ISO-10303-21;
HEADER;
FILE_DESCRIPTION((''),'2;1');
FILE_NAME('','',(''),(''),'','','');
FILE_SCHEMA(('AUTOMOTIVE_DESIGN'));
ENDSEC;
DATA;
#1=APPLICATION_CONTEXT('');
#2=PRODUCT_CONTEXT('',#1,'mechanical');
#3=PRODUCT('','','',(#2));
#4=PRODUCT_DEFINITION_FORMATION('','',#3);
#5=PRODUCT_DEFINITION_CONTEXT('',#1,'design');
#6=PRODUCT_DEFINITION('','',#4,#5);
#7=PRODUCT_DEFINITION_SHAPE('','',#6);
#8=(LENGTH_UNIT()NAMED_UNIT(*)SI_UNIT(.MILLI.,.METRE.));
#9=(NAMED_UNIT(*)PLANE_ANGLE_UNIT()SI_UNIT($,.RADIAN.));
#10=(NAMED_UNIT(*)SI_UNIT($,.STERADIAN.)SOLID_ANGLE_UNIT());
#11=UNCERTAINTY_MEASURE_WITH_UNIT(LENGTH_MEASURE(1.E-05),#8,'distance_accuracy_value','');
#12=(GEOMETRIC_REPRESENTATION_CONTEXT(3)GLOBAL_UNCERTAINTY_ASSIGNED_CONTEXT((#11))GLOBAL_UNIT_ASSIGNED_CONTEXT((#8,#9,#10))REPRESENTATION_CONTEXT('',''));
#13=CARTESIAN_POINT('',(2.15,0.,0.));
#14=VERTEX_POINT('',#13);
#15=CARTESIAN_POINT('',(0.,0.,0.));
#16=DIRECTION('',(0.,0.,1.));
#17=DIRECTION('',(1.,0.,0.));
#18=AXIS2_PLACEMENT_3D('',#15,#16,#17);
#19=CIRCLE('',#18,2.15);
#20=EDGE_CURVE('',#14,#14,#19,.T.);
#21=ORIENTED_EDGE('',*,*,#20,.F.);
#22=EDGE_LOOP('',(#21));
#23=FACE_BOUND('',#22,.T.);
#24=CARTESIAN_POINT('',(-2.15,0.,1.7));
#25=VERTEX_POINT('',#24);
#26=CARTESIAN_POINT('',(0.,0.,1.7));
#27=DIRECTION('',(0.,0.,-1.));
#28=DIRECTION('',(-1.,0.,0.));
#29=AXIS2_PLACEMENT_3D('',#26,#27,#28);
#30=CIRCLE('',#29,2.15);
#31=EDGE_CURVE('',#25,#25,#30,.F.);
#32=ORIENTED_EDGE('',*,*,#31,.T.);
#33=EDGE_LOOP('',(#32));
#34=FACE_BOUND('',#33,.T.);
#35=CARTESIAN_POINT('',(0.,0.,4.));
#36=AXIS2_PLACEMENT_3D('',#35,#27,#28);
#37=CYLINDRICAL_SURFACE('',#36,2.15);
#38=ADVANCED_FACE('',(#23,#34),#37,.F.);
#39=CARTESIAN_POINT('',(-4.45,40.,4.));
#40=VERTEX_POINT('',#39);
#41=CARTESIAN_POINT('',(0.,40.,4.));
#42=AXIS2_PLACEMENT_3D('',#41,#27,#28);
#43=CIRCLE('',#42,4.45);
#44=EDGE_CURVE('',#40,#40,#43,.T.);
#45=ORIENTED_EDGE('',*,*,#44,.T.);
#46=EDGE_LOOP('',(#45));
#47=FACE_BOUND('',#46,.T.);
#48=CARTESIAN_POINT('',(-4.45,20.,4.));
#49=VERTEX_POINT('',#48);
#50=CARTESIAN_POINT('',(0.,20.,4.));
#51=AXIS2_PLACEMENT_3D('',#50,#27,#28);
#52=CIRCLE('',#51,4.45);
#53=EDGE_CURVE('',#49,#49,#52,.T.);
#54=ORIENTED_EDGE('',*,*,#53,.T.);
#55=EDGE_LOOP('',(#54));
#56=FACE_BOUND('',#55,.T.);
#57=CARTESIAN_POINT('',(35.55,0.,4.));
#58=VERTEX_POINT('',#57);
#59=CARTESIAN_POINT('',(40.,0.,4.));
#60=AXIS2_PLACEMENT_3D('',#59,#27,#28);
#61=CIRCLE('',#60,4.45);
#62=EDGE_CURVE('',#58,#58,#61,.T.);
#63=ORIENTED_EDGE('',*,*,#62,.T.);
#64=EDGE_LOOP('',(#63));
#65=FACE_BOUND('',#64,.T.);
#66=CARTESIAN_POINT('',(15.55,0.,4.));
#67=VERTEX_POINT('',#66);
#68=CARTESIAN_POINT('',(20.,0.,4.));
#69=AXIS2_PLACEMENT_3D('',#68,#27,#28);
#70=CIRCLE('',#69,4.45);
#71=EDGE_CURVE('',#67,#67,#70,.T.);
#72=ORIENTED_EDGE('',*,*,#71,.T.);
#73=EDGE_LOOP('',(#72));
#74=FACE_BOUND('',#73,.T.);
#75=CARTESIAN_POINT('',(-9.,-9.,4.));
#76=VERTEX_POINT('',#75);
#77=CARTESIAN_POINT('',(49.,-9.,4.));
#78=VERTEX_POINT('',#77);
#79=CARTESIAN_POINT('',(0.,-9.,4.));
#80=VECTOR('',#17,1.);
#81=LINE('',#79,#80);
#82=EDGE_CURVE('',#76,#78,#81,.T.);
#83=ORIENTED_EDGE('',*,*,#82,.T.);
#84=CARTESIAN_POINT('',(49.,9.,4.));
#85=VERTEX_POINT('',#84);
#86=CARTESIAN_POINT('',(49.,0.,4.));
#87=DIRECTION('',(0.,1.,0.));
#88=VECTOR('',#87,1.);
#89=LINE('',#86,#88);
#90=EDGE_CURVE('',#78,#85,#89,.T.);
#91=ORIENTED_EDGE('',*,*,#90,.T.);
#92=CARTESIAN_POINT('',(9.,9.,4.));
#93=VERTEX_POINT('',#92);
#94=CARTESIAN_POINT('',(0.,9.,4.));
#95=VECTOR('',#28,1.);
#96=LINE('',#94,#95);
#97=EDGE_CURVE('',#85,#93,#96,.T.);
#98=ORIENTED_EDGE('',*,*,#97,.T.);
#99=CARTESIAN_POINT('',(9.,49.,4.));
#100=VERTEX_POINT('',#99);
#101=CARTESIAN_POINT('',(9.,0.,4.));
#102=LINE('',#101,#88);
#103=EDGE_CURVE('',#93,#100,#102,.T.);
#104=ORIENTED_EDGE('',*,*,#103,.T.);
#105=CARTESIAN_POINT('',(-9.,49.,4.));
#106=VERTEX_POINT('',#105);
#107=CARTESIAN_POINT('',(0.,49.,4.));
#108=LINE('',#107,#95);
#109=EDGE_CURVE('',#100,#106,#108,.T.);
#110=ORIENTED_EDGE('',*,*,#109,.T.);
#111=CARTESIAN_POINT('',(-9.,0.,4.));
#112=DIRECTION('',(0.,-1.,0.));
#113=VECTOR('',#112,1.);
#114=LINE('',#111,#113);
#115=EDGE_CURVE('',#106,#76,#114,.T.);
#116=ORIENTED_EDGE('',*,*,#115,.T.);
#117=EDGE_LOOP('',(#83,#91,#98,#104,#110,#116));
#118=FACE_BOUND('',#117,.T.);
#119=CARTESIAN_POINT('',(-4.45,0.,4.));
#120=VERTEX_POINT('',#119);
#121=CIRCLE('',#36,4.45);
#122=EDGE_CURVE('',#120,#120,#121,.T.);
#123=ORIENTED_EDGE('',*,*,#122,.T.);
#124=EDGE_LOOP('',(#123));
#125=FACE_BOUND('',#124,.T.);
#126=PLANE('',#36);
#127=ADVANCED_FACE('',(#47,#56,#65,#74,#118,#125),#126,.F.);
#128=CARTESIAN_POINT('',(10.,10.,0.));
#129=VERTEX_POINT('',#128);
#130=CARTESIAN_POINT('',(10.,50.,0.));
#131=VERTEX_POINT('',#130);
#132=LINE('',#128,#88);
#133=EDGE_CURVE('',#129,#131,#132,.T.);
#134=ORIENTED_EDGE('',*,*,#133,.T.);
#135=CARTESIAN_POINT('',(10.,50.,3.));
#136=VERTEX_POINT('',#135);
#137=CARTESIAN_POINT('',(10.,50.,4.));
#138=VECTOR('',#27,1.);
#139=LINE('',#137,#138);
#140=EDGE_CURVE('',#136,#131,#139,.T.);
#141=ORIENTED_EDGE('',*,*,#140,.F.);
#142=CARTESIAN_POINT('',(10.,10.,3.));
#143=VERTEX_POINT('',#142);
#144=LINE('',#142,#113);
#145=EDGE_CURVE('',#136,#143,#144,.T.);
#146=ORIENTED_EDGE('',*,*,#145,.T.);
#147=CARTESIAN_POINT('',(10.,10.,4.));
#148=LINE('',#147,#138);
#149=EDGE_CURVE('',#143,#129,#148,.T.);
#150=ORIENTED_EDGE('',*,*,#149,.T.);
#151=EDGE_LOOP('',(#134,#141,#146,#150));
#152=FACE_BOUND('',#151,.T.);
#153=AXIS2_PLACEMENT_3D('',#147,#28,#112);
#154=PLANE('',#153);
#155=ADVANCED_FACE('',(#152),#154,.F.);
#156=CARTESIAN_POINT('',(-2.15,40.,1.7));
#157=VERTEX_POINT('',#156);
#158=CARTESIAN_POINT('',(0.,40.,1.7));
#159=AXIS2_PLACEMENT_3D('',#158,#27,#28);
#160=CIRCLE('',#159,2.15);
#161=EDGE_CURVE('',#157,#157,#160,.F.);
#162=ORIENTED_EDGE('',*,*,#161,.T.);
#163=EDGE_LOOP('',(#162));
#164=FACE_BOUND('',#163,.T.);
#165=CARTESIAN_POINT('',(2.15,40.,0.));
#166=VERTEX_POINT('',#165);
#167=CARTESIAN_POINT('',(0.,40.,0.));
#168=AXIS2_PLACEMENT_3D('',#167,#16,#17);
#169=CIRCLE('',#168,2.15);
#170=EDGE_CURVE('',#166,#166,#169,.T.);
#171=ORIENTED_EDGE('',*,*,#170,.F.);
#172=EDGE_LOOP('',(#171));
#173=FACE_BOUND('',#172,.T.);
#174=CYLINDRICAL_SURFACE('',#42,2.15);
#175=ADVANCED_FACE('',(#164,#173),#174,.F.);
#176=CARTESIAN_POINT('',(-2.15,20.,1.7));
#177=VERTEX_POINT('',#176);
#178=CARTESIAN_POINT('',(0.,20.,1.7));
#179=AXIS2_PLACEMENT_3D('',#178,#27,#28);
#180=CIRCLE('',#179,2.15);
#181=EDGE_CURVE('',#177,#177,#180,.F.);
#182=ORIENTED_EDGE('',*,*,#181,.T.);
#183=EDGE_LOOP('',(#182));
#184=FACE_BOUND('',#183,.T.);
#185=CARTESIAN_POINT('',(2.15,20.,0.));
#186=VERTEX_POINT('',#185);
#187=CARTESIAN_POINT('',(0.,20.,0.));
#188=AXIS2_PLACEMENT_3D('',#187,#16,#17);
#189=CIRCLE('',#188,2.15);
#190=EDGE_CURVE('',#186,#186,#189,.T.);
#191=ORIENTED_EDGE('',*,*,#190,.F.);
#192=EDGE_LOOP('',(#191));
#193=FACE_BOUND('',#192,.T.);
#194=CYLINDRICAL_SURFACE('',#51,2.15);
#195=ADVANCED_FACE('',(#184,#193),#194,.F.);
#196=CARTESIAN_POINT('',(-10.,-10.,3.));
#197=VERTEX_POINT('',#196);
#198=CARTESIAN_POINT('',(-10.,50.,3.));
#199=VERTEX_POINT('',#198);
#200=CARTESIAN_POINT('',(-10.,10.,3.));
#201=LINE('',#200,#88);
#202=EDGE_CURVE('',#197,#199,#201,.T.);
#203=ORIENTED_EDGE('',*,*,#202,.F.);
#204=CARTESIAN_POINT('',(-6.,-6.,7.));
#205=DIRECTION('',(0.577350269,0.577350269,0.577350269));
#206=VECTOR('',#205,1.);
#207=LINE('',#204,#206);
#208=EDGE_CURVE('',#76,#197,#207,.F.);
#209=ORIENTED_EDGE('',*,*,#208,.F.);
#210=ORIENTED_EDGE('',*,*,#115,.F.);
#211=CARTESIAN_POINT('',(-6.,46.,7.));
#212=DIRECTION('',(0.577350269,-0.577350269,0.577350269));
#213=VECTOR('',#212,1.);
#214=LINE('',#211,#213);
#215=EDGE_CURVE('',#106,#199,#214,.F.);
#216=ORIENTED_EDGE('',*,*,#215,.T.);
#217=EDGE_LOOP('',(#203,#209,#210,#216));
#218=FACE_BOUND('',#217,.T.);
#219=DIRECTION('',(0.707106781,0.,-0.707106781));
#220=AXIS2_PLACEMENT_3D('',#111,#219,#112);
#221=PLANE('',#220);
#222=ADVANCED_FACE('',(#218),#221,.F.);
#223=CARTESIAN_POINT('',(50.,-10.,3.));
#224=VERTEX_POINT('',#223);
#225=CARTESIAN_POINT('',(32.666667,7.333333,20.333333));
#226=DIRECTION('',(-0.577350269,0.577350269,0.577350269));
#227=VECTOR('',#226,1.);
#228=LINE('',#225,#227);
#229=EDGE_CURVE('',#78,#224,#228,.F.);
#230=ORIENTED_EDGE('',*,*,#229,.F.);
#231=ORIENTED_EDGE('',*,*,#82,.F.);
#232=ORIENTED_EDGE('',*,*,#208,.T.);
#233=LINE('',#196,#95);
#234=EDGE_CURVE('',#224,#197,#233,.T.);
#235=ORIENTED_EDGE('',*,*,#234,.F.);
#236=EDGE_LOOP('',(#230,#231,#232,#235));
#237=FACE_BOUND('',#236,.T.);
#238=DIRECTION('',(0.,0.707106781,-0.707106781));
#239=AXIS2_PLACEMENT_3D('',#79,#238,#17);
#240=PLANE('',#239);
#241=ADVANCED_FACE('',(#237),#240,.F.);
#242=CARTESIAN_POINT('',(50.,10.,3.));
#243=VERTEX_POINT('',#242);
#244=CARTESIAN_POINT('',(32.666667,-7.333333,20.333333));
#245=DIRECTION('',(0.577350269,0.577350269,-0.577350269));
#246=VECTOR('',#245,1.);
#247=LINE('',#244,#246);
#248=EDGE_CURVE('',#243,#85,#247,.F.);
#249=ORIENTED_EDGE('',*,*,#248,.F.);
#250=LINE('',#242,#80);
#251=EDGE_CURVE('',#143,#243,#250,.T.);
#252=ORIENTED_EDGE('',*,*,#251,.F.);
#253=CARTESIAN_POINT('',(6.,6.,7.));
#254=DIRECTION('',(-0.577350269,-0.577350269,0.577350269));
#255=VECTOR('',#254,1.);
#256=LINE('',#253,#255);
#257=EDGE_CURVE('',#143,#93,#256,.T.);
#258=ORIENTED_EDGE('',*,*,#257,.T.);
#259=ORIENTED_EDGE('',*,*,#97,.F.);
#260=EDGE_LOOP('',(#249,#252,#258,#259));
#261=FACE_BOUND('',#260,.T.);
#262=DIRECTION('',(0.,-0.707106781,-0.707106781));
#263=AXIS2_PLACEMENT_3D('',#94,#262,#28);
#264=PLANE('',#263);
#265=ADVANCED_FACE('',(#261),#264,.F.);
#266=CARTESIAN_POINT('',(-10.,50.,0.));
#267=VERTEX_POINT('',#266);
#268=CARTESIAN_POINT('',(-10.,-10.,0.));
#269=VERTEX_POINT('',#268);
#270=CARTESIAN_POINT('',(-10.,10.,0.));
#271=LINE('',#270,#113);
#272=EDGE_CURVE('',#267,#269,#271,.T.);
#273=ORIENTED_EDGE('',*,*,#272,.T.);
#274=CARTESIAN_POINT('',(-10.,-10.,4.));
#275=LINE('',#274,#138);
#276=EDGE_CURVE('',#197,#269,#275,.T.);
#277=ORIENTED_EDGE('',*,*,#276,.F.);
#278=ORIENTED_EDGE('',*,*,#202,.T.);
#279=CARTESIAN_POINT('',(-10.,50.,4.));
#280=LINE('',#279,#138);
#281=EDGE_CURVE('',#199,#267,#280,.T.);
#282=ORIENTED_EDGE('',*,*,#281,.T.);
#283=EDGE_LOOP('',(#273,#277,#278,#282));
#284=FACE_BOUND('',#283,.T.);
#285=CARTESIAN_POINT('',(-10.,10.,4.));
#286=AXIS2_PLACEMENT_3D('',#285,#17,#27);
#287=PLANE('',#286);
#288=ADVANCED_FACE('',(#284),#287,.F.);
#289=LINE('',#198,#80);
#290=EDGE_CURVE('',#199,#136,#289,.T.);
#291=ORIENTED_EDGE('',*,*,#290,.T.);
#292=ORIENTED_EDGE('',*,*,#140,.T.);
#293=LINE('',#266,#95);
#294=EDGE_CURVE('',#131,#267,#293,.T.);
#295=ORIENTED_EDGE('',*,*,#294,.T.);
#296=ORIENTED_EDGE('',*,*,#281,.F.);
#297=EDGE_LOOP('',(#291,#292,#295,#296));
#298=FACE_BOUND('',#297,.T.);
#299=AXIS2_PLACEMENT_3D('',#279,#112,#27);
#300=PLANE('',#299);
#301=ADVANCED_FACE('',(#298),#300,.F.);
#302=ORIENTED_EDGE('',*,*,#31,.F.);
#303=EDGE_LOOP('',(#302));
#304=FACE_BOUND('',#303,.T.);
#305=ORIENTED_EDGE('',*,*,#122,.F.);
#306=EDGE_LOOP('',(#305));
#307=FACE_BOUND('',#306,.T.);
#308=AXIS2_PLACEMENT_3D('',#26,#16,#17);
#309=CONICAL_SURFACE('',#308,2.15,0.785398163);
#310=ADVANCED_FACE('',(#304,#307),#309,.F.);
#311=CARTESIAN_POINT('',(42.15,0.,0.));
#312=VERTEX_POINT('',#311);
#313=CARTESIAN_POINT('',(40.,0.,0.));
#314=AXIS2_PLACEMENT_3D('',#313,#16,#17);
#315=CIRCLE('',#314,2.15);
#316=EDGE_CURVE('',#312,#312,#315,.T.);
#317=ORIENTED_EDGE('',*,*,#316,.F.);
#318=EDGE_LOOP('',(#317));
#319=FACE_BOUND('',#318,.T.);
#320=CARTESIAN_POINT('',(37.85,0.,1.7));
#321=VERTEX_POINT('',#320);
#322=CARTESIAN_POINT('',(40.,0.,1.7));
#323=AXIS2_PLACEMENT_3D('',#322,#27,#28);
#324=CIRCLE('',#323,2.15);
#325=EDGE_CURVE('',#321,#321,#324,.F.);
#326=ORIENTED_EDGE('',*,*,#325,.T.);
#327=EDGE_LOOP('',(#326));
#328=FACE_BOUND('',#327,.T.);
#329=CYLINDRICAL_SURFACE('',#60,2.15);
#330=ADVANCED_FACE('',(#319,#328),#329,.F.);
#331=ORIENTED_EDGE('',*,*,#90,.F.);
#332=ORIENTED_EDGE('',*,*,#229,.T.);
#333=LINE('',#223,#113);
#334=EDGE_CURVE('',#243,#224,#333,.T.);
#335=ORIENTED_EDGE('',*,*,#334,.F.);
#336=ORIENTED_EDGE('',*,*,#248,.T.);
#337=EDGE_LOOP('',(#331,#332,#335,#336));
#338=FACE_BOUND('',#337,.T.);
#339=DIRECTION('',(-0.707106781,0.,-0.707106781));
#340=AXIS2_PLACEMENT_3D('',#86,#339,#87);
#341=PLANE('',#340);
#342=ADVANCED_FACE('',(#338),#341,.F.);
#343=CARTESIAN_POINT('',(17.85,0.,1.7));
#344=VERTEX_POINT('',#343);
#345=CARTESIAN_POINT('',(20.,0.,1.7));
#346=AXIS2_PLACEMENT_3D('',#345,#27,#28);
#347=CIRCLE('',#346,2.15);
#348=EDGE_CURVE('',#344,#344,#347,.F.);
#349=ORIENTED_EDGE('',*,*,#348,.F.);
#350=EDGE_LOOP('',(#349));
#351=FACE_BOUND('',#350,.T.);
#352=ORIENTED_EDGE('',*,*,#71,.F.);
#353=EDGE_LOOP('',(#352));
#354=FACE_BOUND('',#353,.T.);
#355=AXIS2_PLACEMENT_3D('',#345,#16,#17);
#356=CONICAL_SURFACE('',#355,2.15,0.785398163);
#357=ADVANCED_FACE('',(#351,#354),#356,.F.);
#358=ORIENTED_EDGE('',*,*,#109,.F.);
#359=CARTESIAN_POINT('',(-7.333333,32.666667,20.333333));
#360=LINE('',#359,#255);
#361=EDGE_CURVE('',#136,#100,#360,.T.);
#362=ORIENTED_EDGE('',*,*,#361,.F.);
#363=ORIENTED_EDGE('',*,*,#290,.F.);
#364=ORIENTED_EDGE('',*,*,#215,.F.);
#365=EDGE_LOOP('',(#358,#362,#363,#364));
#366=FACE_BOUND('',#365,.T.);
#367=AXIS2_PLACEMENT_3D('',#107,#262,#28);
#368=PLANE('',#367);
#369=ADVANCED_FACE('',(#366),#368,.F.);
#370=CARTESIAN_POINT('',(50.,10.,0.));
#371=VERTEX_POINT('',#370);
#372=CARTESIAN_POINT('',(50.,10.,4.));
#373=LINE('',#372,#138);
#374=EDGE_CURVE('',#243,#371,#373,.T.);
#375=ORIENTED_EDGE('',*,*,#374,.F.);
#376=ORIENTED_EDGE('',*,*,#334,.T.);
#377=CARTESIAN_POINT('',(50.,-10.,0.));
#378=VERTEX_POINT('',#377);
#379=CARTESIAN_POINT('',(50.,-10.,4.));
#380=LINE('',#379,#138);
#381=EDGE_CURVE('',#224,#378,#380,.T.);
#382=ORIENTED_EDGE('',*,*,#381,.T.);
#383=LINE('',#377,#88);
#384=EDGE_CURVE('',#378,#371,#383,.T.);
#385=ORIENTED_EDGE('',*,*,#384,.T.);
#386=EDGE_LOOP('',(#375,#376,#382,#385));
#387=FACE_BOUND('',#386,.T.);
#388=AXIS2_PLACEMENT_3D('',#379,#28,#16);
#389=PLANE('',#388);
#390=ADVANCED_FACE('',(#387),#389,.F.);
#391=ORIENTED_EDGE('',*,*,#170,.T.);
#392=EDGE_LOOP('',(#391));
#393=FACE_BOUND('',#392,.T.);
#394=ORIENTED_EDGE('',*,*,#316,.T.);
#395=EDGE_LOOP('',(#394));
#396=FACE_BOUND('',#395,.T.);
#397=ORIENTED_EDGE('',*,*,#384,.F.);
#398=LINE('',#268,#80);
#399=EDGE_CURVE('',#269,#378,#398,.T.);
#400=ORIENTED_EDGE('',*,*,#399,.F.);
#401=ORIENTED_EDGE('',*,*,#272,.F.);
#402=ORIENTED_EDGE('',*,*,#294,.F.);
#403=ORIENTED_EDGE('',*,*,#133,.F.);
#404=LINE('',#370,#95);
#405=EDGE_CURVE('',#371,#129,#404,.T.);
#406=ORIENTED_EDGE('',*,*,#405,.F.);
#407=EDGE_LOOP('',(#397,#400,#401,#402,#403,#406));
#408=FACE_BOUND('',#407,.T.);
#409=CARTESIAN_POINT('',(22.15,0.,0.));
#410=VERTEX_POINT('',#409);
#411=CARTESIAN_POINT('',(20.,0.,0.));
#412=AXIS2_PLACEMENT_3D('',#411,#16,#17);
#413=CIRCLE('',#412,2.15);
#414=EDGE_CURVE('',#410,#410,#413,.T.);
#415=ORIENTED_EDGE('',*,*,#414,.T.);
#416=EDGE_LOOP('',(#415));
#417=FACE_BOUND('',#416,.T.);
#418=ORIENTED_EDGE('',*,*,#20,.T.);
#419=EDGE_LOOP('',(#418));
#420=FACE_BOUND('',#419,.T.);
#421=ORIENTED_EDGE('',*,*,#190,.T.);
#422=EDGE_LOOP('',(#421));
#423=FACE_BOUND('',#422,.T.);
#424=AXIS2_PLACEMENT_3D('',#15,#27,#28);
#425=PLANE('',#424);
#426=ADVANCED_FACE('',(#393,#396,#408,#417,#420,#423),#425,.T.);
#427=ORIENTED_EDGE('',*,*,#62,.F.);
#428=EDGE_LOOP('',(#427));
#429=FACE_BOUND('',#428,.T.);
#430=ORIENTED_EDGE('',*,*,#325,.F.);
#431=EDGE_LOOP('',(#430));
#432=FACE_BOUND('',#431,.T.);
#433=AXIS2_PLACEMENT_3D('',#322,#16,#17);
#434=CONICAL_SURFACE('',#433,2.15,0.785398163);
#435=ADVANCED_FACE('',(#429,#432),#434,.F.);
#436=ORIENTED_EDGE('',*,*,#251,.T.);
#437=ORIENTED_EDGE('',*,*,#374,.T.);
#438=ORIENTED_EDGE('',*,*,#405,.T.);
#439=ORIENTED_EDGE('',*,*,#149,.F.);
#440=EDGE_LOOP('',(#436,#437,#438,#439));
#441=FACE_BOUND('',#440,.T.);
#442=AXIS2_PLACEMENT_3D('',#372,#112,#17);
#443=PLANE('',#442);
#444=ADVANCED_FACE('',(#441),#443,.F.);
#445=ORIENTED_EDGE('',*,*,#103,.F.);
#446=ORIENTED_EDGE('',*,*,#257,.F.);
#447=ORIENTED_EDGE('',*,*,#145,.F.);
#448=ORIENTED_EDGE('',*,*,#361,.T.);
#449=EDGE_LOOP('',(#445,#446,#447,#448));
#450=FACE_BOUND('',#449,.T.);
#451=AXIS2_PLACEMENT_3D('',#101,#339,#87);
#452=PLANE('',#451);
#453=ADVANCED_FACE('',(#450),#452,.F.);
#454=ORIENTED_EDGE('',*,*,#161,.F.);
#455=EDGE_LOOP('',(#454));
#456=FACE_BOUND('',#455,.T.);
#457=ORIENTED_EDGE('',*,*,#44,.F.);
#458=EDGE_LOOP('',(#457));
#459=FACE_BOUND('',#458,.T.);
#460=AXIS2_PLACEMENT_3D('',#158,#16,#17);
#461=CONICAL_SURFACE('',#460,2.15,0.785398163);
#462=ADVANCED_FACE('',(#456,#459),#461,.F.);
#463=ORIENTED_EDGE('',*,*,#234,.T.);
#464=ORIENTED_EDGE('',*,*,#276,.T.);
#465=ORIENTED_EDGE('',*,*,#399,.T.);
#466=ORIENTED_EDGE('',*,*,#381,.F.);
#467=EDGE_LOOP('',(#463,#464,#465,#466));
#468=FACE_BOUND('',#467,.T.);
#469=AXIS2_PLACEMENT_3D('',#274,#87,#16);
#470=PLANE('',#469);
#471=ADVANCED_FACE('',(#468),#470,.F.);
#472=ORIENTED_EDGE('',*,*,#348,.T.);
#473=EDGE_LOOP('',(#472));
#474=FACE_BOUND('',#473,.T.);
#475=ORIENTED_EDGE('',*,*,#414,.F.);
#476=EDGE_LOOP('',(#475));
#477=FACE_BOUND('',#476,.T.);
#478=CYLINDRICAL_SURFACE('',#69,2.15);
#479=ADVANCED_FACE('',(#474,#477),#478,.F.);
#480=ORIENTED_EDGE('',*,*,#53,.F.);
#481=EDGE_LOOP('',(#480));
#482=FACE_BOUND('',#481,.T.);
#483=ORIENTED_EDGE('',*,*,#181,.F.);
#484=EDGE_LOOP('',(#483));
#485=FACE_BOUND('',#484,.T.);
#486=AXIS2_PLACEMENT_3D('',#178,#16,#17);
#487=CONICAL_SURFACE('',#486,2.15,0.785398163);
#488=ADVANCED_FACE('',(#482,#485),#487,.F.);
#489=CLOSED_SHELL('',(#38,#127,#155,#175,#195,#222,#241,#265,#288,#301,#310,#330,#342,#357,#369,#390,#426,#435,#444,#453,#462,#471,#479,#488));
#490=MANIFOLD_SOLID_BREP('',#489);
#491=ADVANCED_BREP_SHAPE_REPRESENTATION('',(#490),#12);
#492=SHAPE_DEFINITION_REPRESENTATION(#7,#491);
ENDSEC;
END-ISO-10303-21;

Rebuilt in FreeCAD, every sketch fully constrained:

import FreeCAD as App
import Part
import Sketcher
from FreeCAD import Vector
Q = App.Units.Quantity


def edges_at(feature, points):
    """Names of the edges that pass closest to the given points."""
    edges = feature.Shape.Edges
    near = lambda p: min(range(len(edges)), key=lambda i: edges[i].distToShape(Part.Vertex(*p))[0])
    return sorted({f"Edge{near(p) + 1}" for p in points})


def add_polygon(sketch, points):
    """Adds a closed chain of lines whose ends are joined by coincident constraints."""
    first, n = sketch.GeometryCount, len(points)
    for a, b in zip(points, points[1:] + points[:1]):
        sketch.addGeometry(Part.LineSegment(App.Vector(*a, 0), App.Vector(*b, 0)), False)
    for i in range(n):
        sketch.addConstraint(Sketcher.Constraint("Coincident", first + i, 2, first + (i + 1) % n, 1))

doc = App.newDocument("Part")
body = doc.addObject("PartDesign::Body", "Body")

# Sketch on XY plane
sketch1 = body.newObject("Sketcher::SketchObject", "Sketch")
sketch1.AttachmentSupport = (doc.getObject("XY_Plane"), [""])
sketch1.MapMode = "FlatFace"
add_polygon(sketch1, [(50, -10), (50, 10), (10, 10), (10, 50), (-10, 50), (-10, -10)])  # lines 0-5
sketch1.addGeometry(Part.Circle(Vector(0, 0, 0), Vector(0, 0, 1), 2.1), False)  # 6
sketch1.addGeometry(Part.Circle(Vector(20, 0, 0), Vector(0, 0, 1), 2.1), False)  # 7
sketch1.addGeometry(Part.Circle(Vector(40, 0, 0), Vector(0, 0, 1), 2.1), False)  # 8
sketch1.addGeometry(Part.Circle(Vector(0, 20, 0), Vector(0, 0, 1), 2.1), False)  # 9
sketch1.addGeometry(Part.Circle(Vector(0, 40, 0), Vector(0, 0, 1), 2.1), False)  # 10
sketch1.addConstraint(Sketcher.Constraint("Vertical", 0))
sketch1.addConstraint(Sketcher.Constraint("Horizontal", 1))
sketch1.addConstraint(Sketcher.Constraint("Vertical", 2))
sketch1.addConstraint(Sketcher.Constraint("Horizontal", 3))
sketch1.addConstraint(Sketcher.Constraint("Vertical", 4))
sketch1.addConstraint(Sketcher.Constraint("Horizontal", 5))
sketch1.addConstraint(Sketcher.Constraint("Coincident", 6, 3, -1, 1))
sketch1.addConstraint(Sketcher.Constraint("Equal", 6, 7))
sketch1.addConstraint(Sketcher.Constraint("Equal", 7, 8))
sketch1.addConstraint(Sketcher.Constraint("Equal", 8, 9))
sketch1.addConstraint(Sketcher.Constraint("Equal", 9, 10))
sketch1.addConstraint(Sketcher.Constraint("Symmetric", 1, 2, 4, 2, -1, 1))
sketch1.addConstraint(Sketcher.Constraint("PointOnObject", 7, 3, -1))
sketch1.addConstraint(Sketcher.Constraint("PointOnObject", 8, 3, -1))
sketch1.addConstraint(Sketcher.Constraint("PointOnObject", 9, 3, -2))
sketch1.addConstraint(Sketcher.Constraint("PointOnObject", 10, 3, -2))
sketch1.addConstraint(Sketcher.Constraint("Equal", 3, 0))
sketch1.addConstraint(Sketcher.Constraint("Equal", 1, 2))
sketch1.addConstraint(Sketcher.Constraint("Diameter", 6, Q("4.3 mm")))
sketch1.addConstraint(Sketcher.Constraint("DistanceX", 1, 2, 1, 1, Q("40 mm")))
sketch1.addConstraint(Sketcher.Constraint("DistanceX", 3, 2, 3, 1, Q("20 mm")))
sketch1.addConstraint(Sketcher.Constraint("DistanceX", -1, 1, 7, 3, Q("20 mm")))
sketch1.addConstraint(Sketcher.Constraint("DistanceX", -1, 1, 8, 3, Q("40 mm")))
sketch1.addConstraint(Sketcher.Constraint("DistanceY", -1, 1, 9, 3, Q("20 mm")))
sketch1.addConstraint(Sketcher.Constraint("DistanceY", -1, 1, 10, 3, Q("40 mm")))
pad1 = body.newObject("PartDesign::Pad", "Pad")
pad1.Profile = sketch1
pad1.Length = 4
doc.recompute()

chamfer = body.newObject("PartDesign::Chamfer", "Chamfer")
chamfer.Base = (pad1, edges_at(pad1, [
    (0, 50, 4),
    (-10, 20, 4),
    (20, -10, 4),
    (50, 0, 4),
    (30, 10, 4),
    (10, 30, 4),
]))
chamfer.Size = 1
doc.recompute()

chamfer2 = body.newObject("PartDesign::Chamfer", "Chamfer001")
chamfer2.Base = (chamfer, edges_at(chamfer, [
    (17.85, 0, 4),
    (-2.15, 20, 4),
    (-2.15, 40, 4),
    (-2.15, 0, 4),
    (37.85, 0, 4),
]))
chamfer2.Size = 2.3

doc.recompute()
